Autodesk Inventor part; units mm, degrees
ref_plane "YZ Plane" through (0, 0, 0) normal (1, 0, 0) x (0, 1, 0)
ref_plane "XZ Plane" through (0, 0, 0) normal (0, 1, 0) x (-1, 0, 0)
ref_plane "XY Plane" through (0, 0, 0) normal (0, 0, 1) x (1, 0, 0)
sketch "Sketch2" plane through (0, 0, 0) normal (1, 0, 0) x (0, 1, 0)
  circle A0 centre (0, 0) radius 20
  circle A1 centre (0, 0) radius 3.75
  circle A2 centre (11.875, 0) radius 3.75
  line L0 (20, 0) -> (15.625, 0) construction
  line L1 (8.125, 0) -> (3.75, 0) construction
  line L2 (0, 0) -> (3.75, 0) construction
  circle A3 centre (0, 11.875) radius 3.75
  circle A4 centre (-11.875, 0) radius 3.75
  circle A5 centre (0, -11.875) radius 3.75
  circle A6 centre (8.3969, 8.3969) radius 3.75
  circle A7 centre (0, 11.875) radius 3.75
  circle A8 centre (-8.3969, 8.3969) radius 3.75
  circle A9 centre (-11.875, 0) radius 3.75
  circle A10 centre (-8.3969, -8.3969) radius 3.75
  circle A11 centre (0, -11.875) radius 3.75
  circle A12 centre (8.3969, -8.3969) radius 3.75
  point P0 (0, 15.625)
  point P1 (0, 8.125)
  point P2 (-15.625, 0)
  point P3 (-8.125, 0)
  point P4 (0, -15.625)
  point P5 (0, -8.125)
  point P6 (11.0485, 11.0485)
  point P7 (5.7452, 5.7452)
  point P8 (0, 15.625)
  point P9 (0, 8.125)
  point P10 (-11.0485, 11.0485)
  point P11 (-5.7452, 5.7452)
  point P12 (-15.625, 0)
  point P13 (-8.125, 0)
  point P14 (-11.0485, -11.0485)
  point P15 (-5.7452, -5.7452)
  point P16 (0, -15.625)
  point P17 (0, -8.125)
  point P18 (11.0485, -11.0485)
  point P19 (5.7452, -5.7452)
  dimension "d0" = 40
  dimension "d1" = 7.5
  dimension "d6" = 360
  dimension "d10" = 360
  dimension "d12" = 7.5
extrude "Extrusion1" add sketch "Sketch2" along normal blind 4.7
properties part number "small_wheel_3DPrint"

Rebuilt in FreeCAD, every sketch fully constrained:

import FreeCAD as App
import Part
import Sketcher

V = App.Vector
Q = App.Units.Quantity

doc = App.newDocument("Part")
body = doc.addObject("PartDesign::Body", "Body")

sketch1 = body.newObject("Sketcher::SketchObject", "Sketch")
sketch1.AttachmentSupport = (doc.getObject("YZ_Plane"), [""])
sketch1.MapMode = "FlatFace"
sketch1.addGeometry([
    Part.Circle(V(0, 0, 0), V(0, 0, 1), 20),
    Part.Circle(V(-8.4, -8.4, 0), V(0, 0, 1), 3.8),
    Part.Circle(V(0, -11.9, 0), V(0, 0, 1), 3.8),
    Part.Circle(V(8.4, -8.4, 0), V(0, 0, 1), 3.8),
    Part.Circle(V(-11.9, 0, 0), V(0, 0, 1), 3.8),
    Part.Circle(V(-8.4, 8.4, 0), V(0, 0, 1), 3.8),
    Part.Circle(V(0, 0, 0), V(0, 0, 1), 3.8),
    Part.Circle(V(8.4, 8.4, 0), V(0, 0, 1), 3.8),
    Part.Circle(V(11.9, 0, 0), V(0, 0, 1), 3.8),
    Part.Circle(V(0, 11.9, 0), V(0, 0, 1), 3.8),
], False)
sketch1.addConstraint([
    Sketcher.Constraint("Coincident", 0, 3, -1, 1),
    Sketcher.Constraint("Coincident", 6, 3, -1, 1),
    Sketcher.Constraint("Equal", 1, 2),
    Sketcher.Constraint("Equal", 2, 3),
    Sketcher.Constraint("Equal", 3, 4),
    Sketcher.Constraint("Equal", 4, 5),
    Sketcher.Constraint("Equal", 5, 6),
    Sketcher.Constraint("Equal", 6, 7),
    Sketcher.Constraint("Equal", 7, 8),
    Sketcher.Constraint("Equal", 8, 9),
    Sketcher.Constraint("Symmetric", 3, 3, 5, 3, -1, 1),
    Sketcher.Constraint("Symmetric", 1, 3, 7, 3, -1, 1),
    Sketcher.Constraint("Symmetric", 4, 3, 8, 3, -1, 1),
    Sketcher.Constraint("Symmetric", 2, 3, 9, 3, -1, 1),
    Sketcher.Constraint("Symmetric", 1, 3, 3, 3, -2),
    Sketcher.Constraint("PointOnObject", 2, 3, -2),
    Sketcher.Constraint("PointOnObject", 4, 3, -1),
    Sketcher.Constraint("Diameter", 0, Q("40 mm")),
    Sketcher.Constraint("Diameter", 1, Q("7.5 mm")),
    Sketcher.Constraint("DistanceX", 1, 3, -1, 1, Q("8.397 mm")),
    Sketcher.Constraint("DistanceY", 1, 3, -1, 1, Q("8.397 mm")),
    Sketcher.Constraint("DistanceY", 2, 3, -1, 1, Q("11.875 mm")),
    Sketcher.Constraint("DistanceX", 4, 3, -1, 1, Q("11.875 mm")),
])
pad1 = body.newObject("PartDesign::Pad", "Pad")
pad1.Profile = sketch1
pad1.Length = 4.7

doc.recompute()
